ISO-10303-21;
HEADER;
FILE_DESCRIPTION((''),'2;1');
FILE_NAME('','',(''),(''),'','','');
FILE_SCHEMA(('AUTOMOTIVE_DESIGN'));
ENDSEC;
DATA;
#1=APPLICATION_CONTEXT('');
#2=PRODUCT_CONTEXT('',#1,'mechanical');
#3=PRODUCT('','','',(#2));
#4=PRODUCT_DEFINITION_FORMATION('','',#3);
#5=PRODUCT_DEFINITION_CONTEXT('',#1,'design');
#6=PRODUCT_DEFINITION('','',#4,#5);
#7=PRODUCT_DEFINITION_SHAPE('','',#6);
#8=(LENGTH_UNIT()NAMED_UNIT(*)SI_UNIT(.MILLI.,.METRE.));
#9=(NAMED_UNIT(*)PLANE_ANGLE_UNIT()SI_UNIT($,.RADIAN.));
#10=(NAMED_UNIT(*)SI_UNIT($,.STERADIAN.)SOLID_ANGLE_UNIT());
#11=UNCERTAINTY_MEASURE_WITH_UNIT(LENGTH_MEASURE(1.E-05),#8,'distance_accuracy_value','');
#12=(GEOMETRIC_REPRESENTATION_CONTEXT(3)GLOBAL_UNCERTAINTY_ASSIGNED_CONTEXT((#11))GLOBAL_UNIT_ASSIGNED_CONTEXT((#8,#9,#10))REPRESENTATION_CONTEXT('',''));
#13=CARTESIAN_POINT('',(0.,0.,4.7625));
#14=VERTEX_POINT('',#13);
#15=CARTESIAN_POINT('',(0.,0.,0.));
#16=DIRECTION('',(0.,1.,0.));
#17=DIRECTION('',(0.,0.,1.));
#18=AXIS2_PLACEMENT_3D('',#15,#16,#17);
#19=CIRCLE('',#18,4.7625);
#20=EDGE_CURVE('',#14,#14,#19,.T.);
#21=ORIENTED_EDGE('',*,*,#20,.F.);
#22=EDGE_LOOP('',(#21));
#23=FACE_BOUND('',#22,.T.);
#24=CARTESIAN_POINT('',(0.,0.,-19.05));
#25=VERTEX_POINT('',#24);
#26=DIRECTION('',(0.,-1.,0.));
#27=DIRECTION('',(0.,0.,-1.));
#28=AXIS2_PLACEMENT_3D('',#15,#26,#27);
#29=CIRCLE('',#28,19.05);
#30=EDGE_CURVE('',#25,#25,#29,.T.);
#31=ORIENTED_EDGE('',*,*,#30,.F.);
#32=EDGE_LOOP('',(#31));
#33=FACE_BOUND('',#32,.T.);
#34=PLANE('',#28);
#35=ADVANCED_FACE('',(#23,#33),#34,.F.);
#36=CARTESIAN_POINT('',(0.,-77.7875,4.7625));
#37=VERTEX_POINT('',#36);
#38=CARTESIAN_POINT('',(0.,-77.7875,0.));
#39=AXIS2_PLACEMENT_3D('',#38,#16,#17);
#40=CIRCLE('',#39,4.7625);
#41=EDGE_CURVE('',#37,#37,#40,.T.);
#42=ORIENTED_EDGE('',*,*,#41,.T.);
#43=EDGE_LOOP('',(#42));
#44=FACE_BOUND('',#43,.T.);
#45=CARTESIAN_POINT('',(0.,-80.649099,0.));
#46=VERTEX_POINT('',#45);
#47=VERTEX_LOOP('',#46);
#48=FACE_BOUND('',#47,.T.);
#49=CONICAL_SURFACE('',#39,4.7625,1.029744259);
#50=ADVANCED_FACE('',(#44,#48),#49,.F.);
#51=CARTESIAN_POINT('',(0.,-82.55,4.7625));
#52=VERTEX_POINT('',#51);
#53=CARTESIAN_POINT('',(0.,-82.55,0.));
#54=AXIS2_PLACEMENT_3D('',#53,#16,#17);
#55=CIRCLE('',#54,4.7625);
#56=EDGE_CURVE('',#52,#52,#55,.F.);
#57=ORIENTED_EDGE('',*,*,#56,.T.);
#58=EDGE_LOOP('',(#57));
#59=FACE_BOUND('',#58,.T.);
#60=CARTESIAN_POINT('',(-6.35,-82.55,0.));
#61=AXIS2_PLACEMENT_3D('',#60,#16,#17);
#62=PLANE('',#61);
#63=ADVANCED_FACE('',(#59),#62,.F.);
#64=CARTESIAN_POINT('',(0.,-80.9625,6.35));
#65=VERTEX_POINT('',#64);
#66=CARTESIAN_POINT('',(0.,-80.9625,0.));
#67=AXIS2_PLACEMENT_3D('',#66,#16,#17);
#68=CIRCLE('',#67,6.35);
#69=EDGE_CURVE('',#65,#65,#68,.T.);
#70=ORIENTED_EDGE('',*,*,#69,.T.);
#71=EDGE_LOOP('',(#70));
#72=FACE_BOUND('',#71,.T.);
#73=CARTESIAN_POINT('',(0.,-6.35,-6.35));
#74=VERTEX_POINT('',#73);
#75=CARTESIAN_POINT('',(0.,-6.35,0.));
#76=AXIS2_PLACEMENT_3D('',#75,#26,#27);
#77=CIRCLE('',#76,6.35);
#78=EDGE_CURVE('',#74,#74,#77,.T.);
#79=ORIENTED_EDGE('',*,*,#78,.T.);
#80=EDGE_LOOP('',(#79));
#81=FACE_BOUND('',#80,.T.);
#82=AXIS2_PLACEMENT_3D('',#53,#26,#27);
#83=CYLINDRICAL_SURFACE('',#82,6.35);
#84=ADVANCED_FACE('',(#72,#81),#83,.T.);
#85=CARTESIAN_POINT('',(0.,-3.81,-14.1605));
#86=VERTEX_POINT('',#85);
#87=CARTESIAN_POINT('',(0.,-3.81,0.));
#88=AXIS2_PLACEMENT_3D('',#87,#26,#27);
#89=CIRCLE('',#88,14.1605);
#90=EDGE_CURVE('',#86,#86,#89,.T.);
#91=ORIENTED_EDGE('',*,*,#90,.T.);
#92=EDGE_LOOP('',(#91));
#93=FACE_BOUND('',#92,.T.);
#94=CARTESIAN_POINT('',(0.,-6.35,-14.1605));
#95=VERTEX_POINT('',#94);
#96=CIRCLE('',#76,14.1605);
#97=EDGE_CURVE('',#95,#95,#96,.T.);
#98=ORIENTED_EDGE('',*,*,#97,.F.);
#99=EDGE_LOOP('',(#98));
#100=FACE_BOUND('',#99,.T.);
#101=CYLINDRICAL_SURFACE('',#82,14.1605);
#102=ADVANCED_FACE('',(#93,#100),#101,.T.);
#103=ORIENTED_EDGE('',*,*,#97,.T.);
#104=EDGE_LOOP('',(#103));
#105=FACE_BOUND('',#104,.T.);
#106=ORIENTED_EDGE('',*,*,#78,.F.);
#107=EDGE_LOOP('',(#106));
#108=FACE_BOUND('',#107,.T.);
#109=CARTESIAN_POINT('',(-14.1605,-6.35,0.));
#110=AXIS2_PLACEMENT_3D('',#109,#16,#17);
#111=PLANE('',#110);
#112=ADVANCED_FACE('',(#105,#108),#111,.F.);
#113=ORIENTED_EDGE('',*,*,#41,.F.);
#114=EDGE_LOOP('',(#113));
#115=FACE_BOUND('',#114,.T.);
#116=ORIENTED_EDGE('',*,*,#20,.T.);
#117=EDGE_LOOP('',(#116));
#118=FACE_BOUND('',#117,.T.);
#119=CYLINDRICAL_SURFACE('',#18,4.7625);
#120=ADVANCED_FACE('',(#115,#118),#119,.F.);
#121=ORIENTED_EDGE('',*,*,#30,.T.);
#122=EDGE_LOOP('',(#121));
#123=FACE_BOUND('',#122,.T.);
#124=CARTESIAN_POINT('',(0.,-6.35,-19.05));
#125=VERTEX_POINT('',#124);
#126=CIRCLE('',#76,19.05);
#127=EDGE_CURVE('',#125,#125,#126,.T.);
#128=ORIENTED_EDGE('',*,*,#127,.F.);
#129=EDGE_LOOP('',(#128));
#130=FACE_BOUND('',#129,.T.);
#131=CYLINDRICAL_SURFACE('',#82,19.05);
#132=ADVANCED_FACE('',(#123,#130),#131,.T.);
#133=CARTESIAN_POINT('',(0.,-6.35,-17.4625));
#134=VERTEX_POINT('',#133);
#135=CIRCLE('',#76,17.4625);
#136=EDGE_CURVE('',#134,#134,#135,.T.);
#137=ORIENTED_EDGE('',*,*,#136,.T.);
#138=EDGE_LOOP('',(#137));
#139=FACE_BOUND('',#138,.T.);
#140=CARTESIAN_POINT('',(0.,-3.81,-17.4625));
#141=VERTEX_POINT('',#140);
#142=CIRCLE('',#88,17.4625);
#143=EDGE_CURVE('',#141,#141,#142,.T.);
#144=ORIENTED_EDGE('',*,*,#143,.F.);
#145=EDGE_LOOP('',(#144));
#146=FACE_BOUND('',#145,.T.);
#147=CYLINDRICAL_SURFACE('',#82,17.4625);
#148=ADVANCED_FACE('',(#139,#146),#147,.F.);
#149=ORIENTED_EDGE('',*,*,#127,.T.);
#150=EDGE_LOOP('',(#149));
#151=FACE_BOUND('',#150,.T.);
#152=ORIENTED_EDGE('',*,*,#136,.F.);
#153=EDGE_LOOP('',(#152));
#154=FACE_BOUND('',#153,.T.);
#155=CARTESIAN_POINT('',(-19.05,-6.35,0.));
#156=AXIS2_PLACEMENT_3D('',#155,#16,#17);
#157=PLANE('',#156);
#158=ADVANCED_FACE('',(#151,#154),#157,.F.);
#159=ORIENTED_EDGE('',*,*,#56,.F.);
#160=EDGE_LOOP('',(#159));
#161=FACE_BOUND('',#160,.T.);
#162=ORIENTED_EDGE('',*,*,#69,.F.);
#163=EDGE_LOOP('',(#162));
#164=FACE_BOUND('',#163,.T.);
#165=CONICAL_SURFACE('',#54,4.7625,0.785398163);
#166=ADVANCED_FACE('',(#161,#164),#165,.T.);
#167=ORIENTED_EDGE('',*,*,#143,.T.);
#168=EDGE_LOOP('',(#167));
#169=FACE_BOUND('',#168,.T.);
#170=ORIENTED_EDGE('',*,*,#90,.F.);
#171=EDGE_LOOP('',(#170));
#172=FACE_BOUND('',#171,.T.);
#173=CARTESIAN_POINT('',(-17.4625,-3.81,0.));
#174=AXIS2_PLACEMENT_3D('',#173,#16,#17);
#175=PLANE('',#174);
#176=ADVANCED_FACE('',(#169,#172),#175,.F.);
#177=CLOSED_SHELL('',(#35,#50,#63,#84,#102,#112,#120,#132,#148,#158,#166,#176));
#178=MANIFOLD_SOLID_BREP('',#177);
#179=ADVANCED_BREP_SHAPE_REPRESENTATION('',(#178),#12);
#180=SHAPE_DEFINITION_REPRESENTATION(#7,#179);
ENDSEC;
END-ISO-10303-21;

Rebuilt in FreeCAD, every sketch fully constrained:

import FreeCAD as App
import Part
import Sketcher
from FreeCAD import Vector
Q = App.Units.Quantity


def edges_at(feature, points):
    """Names of the edges that pass closest to the given points."""
    edges = feature.Shape.Edges
    near = lambda p: min(range(len(edges)), key=lambda i: edges[i].distToShape(Part.Vertex(*p))[0])
    return sorted({f"Edge{near(p) + 1}" for p in points})


def add_polygon(sketch, points):
    """Adds a closed chain of lines whose ends are joined by coincident constraints."""
    first, n = sketch.GeometryCount, len(points)
    for a, b in zip(points, points[1:] + points[:1]):
        sketch.addGeometry(Part.LineSegment(App.Vector(*a, 0), App.Vector(*b, 0)), False)
    for i in range(n):
        sketch.addConstraint(Sketcher.Constraint("Coincident", first + i, 2, first + (i + 1) % n, 1))

doc = App.newDocument("Part")
body = doc.addObject("PartDesign::Body", "Body")

# Sketch on XY plane
sketch1 = body.newObject("Sketcher::SketchObject", "Sketch")
sketch1.AttachmentSupport = (doc.getObject("XY_Plane"), [""])
sketch1.MapMode = "FlatFace"
add_polygon(sketch1, [(0, 0), (-19.05, 0), (-19.05, -6.35), (-17.4625, -6.35), (-17.4625, -3.81), (-14.1605, -3.81), (-14.1605, -6.35), (-6.35, -6.35), (-6.35, -82.55), (0, -82.55)])  # lines 0-9
sketch1.addConstraint(Sketcher.Constraint("Horizontal", 0))
sketch1.addConstraint(Sketcher.Constraint("Vertical", 1))
sketch1.addConstraint(Sketcher.Constraint("Horizontal", 2))
sketch1.addConstraint(Sketcher.Constraint("Vertical", 3))
sketch1.addConstraint(Sketcher.Constraint("Horizontal", 4))
sketch1.addConstraint(Sketcher.Constraint("Vertical", 5))
sketch1.addConstraint(Sketcher.Constraint("Horizontal", 6))
sketch1.addConstraint(Sketcher.Constraint("Vertical", 7))
sketch1.addConstraint(Sketcher.Constraint("Horizontal", 8))
sketch1.addConstraint(Sketcher.Constraint("Vertical", 9))
sketch1.addConstraint(Sketcher.Constraint("Coincident", 9, 2, -1, 1))
sketch1.addConstraint(Sketcher.Constraint("Horizontal", 2, 2, 5, 2))
sketch1.addConstraint(Sketcher.Constraint("Equal", 8, 1))
sketch1.addConstraint(Sketcher.Constraint("DistanceY", 7, 2, 7, 1, Q("3 in")))
sketch1.addConstraint(Sketcher.Constraint("DistanceY", 3, 1, 3, 2, Q("0.1 in")))
sketch1.addConstraint(Sketcher.Constraint("DistanceX", 0, 2, 0, 1, Q("0.75 in")))
sketch1.addConstraint(Sketcher.Constraint("DistanceX", 4, 1, 4, 2, Q("0.13 in")))
sketch1.addConstraint(Sketcher.Constraint("DistanceX", 8, 1, 8, 2, Q("0.25 in")))
sketch1.addConstraint(Sketcher.Constraint("DistanceX", 2, 1, 2, 2, Q("0.0625 in")))
revolution = body.newObject("PartDesign::Revolution", "Revolution")
revolution.Profile = sketch1
revolution.ReferenceAxis = (sketch1, ["V_Axis"])
revolution.Angle = 360

# Sketch on XZ plane
sketch2 = body.newObject("Sketcher::SketchObject", "Sketch001")
sketch2.AttachmentSupport = (doc.getObject("XZ_Plane"), [""])
sketch2.MapMode = "FlatFace"
sketch2.addGeometry(Part.Circle(Vector(0, 0, 0), Vector(0, 0, 1), 4.7625), False)
sketch2.addConstraint(Sketcher.Constraint("Coincident", 0, 3, -1, 1))
sketch2.addConstraint(Sketcher.Constraint("Diameter", 0, Q("0.375 in")))
doc.recompute()
hole = body.newObject("PartDesign::Hole", "Hole")
hole.Profile = sketch2
hole.ThreadType = "None"
hole.Diameter = Q("0.375 in")
hole.DepthType = "Dimension"
hole.Depth = Q("3.0625 in")
hole.DrillPoint = "Angled"
hole.DrillPointAngle = 118
hole.Reversed = True
doc.recompute()

chamfer = body.newObject("PartDesign::Chamfer", "Chamfer")
chamfer.Base = (hole, edges_at(hole, [(6.35, -82.55, 0)]))
chamfer.Size = Q("0.0625 in")

doc.recompute()
